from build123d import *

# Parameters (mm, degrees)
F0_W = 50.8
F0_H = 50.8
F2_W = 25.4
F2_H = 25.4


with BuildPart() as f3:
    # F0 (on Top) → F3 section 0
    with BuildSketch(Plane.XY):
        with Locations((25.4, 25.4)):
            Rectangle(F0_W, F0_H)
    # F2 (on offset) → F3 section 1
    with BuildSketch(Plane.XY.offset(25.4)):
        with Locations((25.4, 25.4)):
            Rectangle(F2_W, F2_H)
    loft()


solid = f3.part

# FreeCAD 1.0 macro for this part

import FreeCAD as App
import Part
import Sketcher
from FreeCAD import Vector
Q = App.Units.Quantity

doc = App.newDocument("Part")
params = doc.addObject("Spreadsheet::Sheet", "Params")
for row, (alias, value) in enumerate([
    ("sketch1_width", "2 in"),
    ("sketch2_width", "1 in"),
], start=1):
    params.set(f"A{row}", alias)
    params.set(f"B{row}", "=" + value)
    params.setAlias(f"B{row}", alias)

body = doc.addObject("PartDesign::Body", "Body")

sketch1 = body.newObject("Sketcher::SketchObject", "Sketch")
sketch1.AttachmentSupport = (doc.getObject("XY_Plane"), [""])
sketch1.MapMode = "FlatFace"
sketch1.addGeometry([
    Part.LineSegment(Vector(0, 51, 0), Vector(0, 0, 0)),
    Part.LineSegment(Vector(0, 0, 0), Vector(51, 0, 0)),
    Part.LineSegment(Vector(51, 0, 0), Vector(51, 51, 0)),
    Part.LineSegment(Vector(51, 51, 0), Vector(0, 51, 0)),
], False)
sketch1.addConstraint([
    Sketcher.Constraint("Coincident", 0, 2, 1, 1),
    Sketcher.Constraint("Coincident", 1, 2, 2, 1),
    Sketcher.Constraint("Coincident", 2, 2, 3, 1),
    Sketcher.Constraint("Coincident", 3, 2, 0, 1),
    Sketcher.Constraint("Vertical", 0),
    Sketcher.Constraint("Horizontal", 1),
    Sketcher.Constraint("Vertical", 2),
    Sketcher.Constraint("Horizontal", 3),
    Sketcher.Constraint("Coincident", 0, 2, -1, 1),
    Sketcher.Constraint("Equal", 3, 0),
    Sketcher.Constraint("DistanceX", 1, 1, 1, 2, Q("2 in")),
])
sketch1.setExpression("Constraints[10]", "Params.sketch1_width")

sketch2 = body.newObject("Sketcher::SketchObject", "Sketch001")
sketch2.AttachmentSupport = (doc.getObject("XY_Plane"), [""])
sketch2.MapMode = "FlatFace"
sketch2.AttachmentOffset = App.Placement(Vector(0, 0, 1 * 25.4), App.Rotation())
sketch2.addGeometry([
    Part.LineSegment(Vector(13, 38, 0), Vector(13, 13, 0)),
    Part.LineSegment(Vector(13, 13, 0), Vector(38, 13, 0)),
    Part.LineSegment(Vector(38, 13, 0), Vector(38, 38, 0)),
    Part.LineSegment(Vector(38, 38, 0), Vector(13, 38, 0)),
], False)
sketch2.addConstraint([
    Sketcher.Constraint("Coincident", 0, 2, 1, 1),
    Sketcher.Constraint("Coincident", 1, 2, 2, 1),
    Sketcher.Constraint("Coincident", 2, 2, 3, 1),
    Sketcher.Constraint("Coincident", 3, 2, 0, 1),
    Sketcher.Constraint("Vertical", 0),
    Sketcher.Constraint("Horizontal", 1),
    Sketcher.Constraint("Vertical", 2),
    Sketcher.Constraint("Horizontal", 3),
    Sketcher.Constraint("Equal", 3, 0),
    Sketcher.Constraint("DistanceX", 1, 1, 1, 2, Q("1 in")),
    Sketcher.Constraint("DistanceX", -1, 1, 0, 2, Q("0.5 in")),
    Sketcher.Constraint("DistanceY", -1, 1, 0, 2, Q("0.5 in")),
])
sketch2.setExpression("Constraints[9]", "Params.sketch2_width")

additiveloft = body.newObject("PartDesign::AdditiveLoft", "AdditiveLoft")
additiveloft.Profile = sketch1
additiveloft.Sections = [sketch2]

doc.recompute()
